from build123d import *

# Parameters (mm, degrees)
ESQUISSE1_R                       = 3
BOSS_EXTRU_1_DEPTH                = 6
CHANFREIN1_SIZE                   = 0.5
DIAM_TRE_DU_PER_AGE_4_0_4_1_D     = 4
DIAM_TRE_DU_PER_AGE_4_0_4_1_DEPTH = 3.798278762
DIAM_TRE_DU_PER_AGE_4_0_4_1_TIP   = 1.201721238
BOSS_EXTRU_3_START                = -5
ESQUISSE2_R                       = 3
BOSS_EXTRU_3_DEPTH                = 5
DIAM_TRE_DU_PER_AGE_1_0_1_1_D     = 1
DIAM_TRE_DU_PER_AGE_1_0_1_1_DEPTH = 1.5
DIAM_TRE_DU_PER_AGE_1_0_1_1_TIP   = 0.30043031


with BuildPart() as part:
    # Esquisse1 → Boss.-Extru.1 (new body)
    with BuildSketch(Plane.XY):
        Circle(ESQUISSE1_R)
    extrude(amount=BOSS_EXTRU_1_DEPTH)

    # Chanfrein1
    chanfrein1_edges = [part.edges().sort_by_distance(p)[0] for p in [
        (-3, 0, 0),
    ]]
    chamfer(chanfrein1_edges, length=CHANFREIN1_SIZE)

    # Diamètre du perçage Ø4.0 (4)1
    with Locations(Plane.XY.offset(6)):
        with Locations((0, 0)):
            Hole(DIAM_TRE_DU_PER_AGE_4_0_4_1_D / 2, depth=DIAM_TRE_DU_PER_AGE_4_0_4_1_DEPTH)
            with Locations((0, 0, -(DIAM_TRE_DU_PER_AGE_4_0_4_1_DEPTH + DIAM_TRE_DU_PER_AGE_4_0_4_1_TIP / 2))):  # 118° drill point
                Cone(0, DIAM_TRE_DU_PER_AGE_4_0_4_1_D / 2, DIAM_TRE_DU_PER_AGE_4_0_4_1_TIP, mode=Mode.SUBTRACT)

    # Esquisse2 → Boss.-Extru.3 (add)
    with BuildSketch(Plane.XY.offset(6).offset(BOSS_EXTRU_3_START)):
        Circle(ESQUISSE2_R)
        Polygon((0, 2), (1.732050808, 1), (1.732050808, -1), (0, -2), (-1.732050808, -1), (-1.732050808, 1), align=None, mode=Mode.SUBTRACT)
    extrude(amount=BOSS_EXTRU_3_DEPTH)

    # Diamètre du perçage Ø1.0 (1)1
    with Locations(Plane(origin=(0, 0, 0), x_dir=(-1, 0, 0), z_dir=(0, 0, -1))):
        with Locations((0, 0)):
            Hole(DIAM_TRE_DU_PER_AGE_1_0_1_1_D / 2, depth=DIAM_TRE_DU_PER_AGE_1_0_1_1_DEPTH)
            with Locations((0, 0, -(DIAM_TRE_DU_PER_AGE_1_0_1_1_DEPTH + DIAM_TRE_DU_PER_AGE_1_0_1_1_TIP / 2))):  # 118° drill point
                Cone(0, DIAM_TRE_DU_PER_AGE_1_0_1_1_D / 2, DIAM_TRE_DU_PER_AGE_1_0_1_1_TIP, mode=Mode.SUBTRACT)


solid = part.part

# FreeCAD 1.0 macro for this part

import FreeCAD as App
import Part
import Sketcher

V = App.Vector
Q = App.Units.Quantity


def edges_at(feature, points):
    """Names of the edges that pass closest to the given points."""
    edges = feature.Shape.Edges
    near = lambda p: min(range(len(edges)), key=lambda i: edges[i].distToShape(Part.Vertex(*p))[0])
    return sorted({f"Edge{near(p) + 1}" for p in points})


def add_polygon(sketch, points):
    """Adds a closed chain of lines whose ends are joined by coincident constraints."""
    first, n = sketch.GeometryCount, len(points)
    for a, b in zip(points, points[1:] + points[:1]):
        sketch.addGeometry(Part.LineSegment(App.Vector(*a, 0), App.Vector(*b, 0)), False)
    for i in range(n):
        sketch.addConstraint(Sketcher.Constraint("Coincident", first + i, 2, first + (i + 1) % n, 1))

doc = App.newDocument("Part")
params = doc.addObject("Spreadsheet::Sheet", "Params")
for row, (alias, value) in enumerate([
    ("sketch1_diameter", "6 mm"),
    ("pad1_length", "6 mm"),
    ("chamfer_size", "0.5 mm"),
    ("sketch2_diameter", "4 mm"),
    ("hole_diameter", "4 mm"),
    ("hole_depth", "3.798279 mm"),
    ("sketch3_diameter", "6 mm"),
    ("sketch3_height", "2 mm"),
    ("sketch3_length", "2 mm"),
    ("pad2_length", "5 mm"),
    ("sketch4_diameter", "1 mm"),
    ("hole2_diameter", "1 mm"),
    ("hole2_depth", "1.5 mm"),
], start=1):
    params.set(f"A{row}", alias)
    params.set(f"B{row}", "=" + value)
    params.setAlias(f"B{row}", alias)

body = doc.addObject("PartDesign::Body", "Body")

# Sketch on XY plane
sketch1 = body.newObject("Sketcher::SketchObject", "Sketch")
sketch1.AttachmentSupport = (doc.getObject("XY_Plane"), [""])
sketch1.MapMode = "FlatFace"
sketch1.addGeometry(Part.Circle(V(0, 0, 0), V(0, 0, 1), 3), False)
sketch1.addConstraint(Sketcher.Constraint("Coincident", 0, 3, -1, 1))
sketch1.addConstraint(Sketcher.Constraint("Diameter", 0, 6.0))
sketch1.setExpression("Constraints[1]", "Params.sketch1_diameter")
pad1 = body.newObject("PartDesign::Pad", "Pad")
pad1.Profile = sketch1
pad1.setExpression("Length", "Params.pad1_length")
doc.recompute()

chamfer = body.newObject("PartDesign::Chamfer", "Chamfer")
chamfer.Base = (pad1, edges_at(pad1, [(-3, 0, 0)]))
chamfer.setExpression("Size", "Params.chamfer_size")

# Sketch on XY plane
sketch2 = body.newObject("Sketcher::SketchObject", "Sketch001")
sketch2.AttachmentSupport = (doc.getObject("XY_Plane"), [""])
sketch2.MapMode = "FlatFace"
sketch2.AttachmentOffset = App.Placement(V(0, 0, 6), App.Rotation())
sketch2.addGeometry(Part.Circle(V(0, 0, 0), V(0, 0, 1), 2), False)
sketch2.addConstraint(Sketcher.Constraint("Coincident", 0, 3, -1, 1))
sketch2.addConstraint(Sketcher.Constraint("Diameter", 0, 4.0))
sketch2.setExpression("Constraints[1]", "Params.sketch2_diameter")
doc.recompute()
hole = body.newObject("PartDesign::Hole", "Hole")
hole.Profile = sketch2
hole.ThreadType = "None"
hole.setExpression("Diameter", "Params.hole_diameter")
hole.DepthType = "Dimension"
hole.setExpression("Depth", "Params.hole_depth")
hole.DrillPoint = "Angled"
hole.DrillPointAngle = 118

# Sketch on XY plane
sketch3 = body.newObject("Sketcher::SketchObject", "Sketch002")
sketch3.AttachmentSupport = (doc.getObject("XY_Plane"), [""])
sketch3.MapMode = "FlatFace"
sketch3.AttachmentOffset = App.Placement(V(0, 0, 1), App.Rotation())
sketch3.addGeometry(Part.Circle(V(0, 0, 0), V(0, 0, 1), 3), False)  # 0
add_polygon(sketch3, [(-1.7, 1), (0, 2), (1.7, 1), (1.7, -1), (0, -2), (-1.7, -1)])  # lines 1-6
sketch3.addConstraint(Sketcher.Constraint("Vertical", 3))
sketch3.addConstraint(Sketcher.Constraint("Vertical", 6))
sketch3.addConstraint(Sketcher.Constraint("Coincident", 0, 3, -1, 1))
sketch3.addConstraint(Sketcher.Constraint("Symmetric", 1, 2, 4, 2, -1, 1))
sketch3.addConstraint(Sketcher.Constraint("Symmetric", 2, 2, 5, 2, -1, 1))
sketch3.addConstraint(Sketcher.Constraint("PointOnObject", 1, 2, -2))
sketch3.addConstraint(Sketcher.Constraint("Parallel", 1, 4))
sketch3.addConstraint(Sketcher.Constraint("Horizontal", 3, 2, 5, 2))
sketch3.addConstraint(Sketcher.Constraint("Diameter", 0, 6.0))
sketch3.addConstraint(Sketcher.Constraint("DistanceY", 3, 2, 3, 1, 2.0))
sketch3.addConstraint(Sketcher.Constraint("Angle", 1, Q("30 deg")))
sketch3.addConstraint(Sketcher.Constraint("Distance", 1, 2.0))
sketch3.setExpression("Constraints[14]", "Params.sketch3_diameter")
sketch3.setExpression("Constraints[15]", "Params.sketch3_height")
sketch3.setExpression("Constraints[17]", "Params.sketch3_length")
pad2 = body.newObject("PartDesign::Pad", "Pad001")
pad2.Profile = sketch3
pad2.setExpression("Length", "Params.pad2_length")

# Sketch on XY plane
sketch4 = body.newObject("Sketcher::SketchObject", "Sketch003")
sketch4.AttachmentSupport = (doc.getObject("XY_Plane"), [""])
sketch4.MapMode = "FlatFace"
sketch4.addGeometry(Part.Circle(V(0, 0, 0), V(0, 0, 1), 0.5), False)
sketch4.addConstraint(Sketcher.Constraint("Coincident", 0, 3, -1, 1))
sketch4.addConstraint(Sketcher.Constraint("Diameter", 0, 1.0))
sketch4.setExpression("Constraints[1]", "Params.sketch4_diameter")
doc.recompute()
hole2 = body.newObject("PartDesign::Hole", "Hole001")
hole2.Profile = sketch4
hole2.ThreadType = "None"
hole2.setExpression("Diameter", "Params.hole2_diameter")
hole2.DepthType = "Dimension"
hole2.setExpression("Depth", "Params.hole2_depth")
hole2.DrillPoint = "Angled"
hole2.DrillPointAngle = 118
hole2.Reversed = True

doc.recompute()
